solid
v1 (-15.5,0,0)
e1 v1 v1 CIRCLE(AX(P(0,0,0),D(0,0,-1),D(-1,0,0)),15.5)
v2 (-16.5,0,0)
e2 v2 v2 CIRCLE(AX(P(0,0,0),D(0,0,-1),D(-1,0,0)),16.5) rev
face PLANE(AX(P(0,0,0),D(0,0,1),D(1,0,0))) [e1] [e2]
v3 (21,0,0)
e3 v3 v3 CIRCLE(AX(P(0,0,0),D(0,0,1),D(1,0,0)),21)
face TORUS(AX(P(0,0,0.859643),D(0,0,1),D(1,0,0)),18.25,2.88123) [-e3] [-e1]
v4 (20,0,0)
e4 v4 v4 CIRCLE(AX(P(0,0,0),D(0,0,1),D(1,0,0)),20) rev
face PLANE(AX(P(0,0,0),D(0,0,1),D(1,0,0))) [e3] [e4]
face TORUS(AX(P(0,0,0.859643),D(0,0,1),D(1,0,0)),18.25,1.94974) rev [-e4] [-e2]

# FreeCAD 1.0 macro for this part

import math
import FreeCAD as App
import Part
import Sketcher

doc = App.newDocument("Part")
body = doc.addObject("PartDesign::Body", "Body")

# Sketch on XY plane
sketch1 = body.newObject("Sketcher::SketchObject", "Sketch")
sketch1.AttachmentSupport = (doc.getObject("XY_Plane"), [""])
sketch1.MapMode = "FlatFace"
sketch1.addGeometry(Part.Circle(App.Vector(0, 0, 0), App.Vector(0, 0, 1), 21), False)
sketch1.addGeometry(Part.Circle(App.Vector(0, 0, 0), App.Vector(0, 0, 1), 16), False)
sketch1.addConstraint(Sketcher.Constraint("Coincident", 0, 3, -1, 1))
sketch1.addConstraint(Sketcher.Constraint("Coincident", 1, 3, -1, 1))
sketch1.addConstraint(Sketcher.Constraint("Diameter", 0, 42.0))
sketch1.addConstraint(Sketcher.Constraint("Diameter", 1, 31.0))
pad1 = body.newObject("PartDesign::Pad", "Pad")
pad1.Profile = sketch1
pad1.Length = 2

# Sketch on XZ plane
sketch2 = body.newObject("Sketcher::SketchObject", "Sketch001")
sketch2.AttachmentSupport = (doc.getObject("XZ_Plane"), [""])
sketch2.MapMode = "FlatFace"
sketch2.addGeometry(Part.LineSegment(App.Vector(-21, 0, 0), App.Vector(-20, 0, 0)), False)
sketch2.addGeometry(Part.ArcOfCircle(Part.Circle(App.Vector(-18.2, 0.9, 0), App.Vector(0, 0, 1), 1.9), math.radians(-154), math.radians(-26)), False)
sketch2.addGeometry(Part.LineSegment(App.Vector(-16.5, 0, 0), App.Vector(-15.5, 0, 0)), False)
sketch2.addGeometry(Part.ArcOfCircle(Part.Circle(App.Vector(-18.2, 0.9, 0), App.Vector(0, 0, 1), 2.9), math.radians(-163), math.radians(-17)), False)
sketch2.addConstraint(Sketcher.Constraint("Coincident", 0, 2, 1, 1))
sketch2.addConstraint(Sketcher.Constraint("Coincident", 1, 2, 2, 1))
sketch2.addConstraint(Sketcher.Constraint("Coincident", 2, 2, 3, 2))
sketch2.addConstraint(Sketcher.Constraint("Coincident", 3, 1, 0, 1))
sketch2.addConstraint(Sketcher.Constraint("Horizontal", 0))
sketch2.addConstraint(Sketcher.Constraint("Horizontal", 2))
sketch2.addConstraint(Sketcher.Constraint("Coincident", 3, 3, 1, 3))
sketch2.addConstraint(Sketcher.Constraint("PointOnObject", 0, 2, -1))
sketch2.addConstraint(Sketcher.Constraint("PointOnObject", 1, 2, -1))
sketch2.addConstraint(Sketcher.Constraint("DistanceX", 0, 1, 0, 2, 1.0))
sketch2.addConstraint(Sketcher.Constraint("DistanceX", 0, 2, -1, 1, 20.0))
sketch2.addConstraint(Sketcher.Constraint("DistanceX", 1, 2, -1, 1, 16.5))
sketch2.addConstraint(Sketcher.Constraint("Radius", 1, 1.94974))
revolution = body.newObject("PartDesign::Revolution", "Revolution")
revolution.Profile = sketch2
revolution.ReferenceAxis = (sketch2, ["V_Axis"])
revolution.Angle = 360

# Sketch on XY plane
sketch3 = body.newObject("Sketcher::SketchObject", "Sketch002")
sketch3.AttachmentSupport = (doc.getObject("XY_Plane"), [""])
sketch3.MapMode = "FlatFace"
sketch3.addGeometry(Part.Circle(App.Vector(0, 0, 0), App.Vector(0, 0, 1), 21), False)
sketch3.addConstraint(Sketcher.Constraint("Coincident", 0, 3, -1, 1))
sketch3.addConstraint(Sketcher.Constraint("Diameter", 0, 42.0))
pocket1 = body.newObject("PartDesign::Pocket", "Pocket")
pocket1.Profile = sketch3
pocket1.Length = 2
pocket1.Reversed = True

doc.recompute()
